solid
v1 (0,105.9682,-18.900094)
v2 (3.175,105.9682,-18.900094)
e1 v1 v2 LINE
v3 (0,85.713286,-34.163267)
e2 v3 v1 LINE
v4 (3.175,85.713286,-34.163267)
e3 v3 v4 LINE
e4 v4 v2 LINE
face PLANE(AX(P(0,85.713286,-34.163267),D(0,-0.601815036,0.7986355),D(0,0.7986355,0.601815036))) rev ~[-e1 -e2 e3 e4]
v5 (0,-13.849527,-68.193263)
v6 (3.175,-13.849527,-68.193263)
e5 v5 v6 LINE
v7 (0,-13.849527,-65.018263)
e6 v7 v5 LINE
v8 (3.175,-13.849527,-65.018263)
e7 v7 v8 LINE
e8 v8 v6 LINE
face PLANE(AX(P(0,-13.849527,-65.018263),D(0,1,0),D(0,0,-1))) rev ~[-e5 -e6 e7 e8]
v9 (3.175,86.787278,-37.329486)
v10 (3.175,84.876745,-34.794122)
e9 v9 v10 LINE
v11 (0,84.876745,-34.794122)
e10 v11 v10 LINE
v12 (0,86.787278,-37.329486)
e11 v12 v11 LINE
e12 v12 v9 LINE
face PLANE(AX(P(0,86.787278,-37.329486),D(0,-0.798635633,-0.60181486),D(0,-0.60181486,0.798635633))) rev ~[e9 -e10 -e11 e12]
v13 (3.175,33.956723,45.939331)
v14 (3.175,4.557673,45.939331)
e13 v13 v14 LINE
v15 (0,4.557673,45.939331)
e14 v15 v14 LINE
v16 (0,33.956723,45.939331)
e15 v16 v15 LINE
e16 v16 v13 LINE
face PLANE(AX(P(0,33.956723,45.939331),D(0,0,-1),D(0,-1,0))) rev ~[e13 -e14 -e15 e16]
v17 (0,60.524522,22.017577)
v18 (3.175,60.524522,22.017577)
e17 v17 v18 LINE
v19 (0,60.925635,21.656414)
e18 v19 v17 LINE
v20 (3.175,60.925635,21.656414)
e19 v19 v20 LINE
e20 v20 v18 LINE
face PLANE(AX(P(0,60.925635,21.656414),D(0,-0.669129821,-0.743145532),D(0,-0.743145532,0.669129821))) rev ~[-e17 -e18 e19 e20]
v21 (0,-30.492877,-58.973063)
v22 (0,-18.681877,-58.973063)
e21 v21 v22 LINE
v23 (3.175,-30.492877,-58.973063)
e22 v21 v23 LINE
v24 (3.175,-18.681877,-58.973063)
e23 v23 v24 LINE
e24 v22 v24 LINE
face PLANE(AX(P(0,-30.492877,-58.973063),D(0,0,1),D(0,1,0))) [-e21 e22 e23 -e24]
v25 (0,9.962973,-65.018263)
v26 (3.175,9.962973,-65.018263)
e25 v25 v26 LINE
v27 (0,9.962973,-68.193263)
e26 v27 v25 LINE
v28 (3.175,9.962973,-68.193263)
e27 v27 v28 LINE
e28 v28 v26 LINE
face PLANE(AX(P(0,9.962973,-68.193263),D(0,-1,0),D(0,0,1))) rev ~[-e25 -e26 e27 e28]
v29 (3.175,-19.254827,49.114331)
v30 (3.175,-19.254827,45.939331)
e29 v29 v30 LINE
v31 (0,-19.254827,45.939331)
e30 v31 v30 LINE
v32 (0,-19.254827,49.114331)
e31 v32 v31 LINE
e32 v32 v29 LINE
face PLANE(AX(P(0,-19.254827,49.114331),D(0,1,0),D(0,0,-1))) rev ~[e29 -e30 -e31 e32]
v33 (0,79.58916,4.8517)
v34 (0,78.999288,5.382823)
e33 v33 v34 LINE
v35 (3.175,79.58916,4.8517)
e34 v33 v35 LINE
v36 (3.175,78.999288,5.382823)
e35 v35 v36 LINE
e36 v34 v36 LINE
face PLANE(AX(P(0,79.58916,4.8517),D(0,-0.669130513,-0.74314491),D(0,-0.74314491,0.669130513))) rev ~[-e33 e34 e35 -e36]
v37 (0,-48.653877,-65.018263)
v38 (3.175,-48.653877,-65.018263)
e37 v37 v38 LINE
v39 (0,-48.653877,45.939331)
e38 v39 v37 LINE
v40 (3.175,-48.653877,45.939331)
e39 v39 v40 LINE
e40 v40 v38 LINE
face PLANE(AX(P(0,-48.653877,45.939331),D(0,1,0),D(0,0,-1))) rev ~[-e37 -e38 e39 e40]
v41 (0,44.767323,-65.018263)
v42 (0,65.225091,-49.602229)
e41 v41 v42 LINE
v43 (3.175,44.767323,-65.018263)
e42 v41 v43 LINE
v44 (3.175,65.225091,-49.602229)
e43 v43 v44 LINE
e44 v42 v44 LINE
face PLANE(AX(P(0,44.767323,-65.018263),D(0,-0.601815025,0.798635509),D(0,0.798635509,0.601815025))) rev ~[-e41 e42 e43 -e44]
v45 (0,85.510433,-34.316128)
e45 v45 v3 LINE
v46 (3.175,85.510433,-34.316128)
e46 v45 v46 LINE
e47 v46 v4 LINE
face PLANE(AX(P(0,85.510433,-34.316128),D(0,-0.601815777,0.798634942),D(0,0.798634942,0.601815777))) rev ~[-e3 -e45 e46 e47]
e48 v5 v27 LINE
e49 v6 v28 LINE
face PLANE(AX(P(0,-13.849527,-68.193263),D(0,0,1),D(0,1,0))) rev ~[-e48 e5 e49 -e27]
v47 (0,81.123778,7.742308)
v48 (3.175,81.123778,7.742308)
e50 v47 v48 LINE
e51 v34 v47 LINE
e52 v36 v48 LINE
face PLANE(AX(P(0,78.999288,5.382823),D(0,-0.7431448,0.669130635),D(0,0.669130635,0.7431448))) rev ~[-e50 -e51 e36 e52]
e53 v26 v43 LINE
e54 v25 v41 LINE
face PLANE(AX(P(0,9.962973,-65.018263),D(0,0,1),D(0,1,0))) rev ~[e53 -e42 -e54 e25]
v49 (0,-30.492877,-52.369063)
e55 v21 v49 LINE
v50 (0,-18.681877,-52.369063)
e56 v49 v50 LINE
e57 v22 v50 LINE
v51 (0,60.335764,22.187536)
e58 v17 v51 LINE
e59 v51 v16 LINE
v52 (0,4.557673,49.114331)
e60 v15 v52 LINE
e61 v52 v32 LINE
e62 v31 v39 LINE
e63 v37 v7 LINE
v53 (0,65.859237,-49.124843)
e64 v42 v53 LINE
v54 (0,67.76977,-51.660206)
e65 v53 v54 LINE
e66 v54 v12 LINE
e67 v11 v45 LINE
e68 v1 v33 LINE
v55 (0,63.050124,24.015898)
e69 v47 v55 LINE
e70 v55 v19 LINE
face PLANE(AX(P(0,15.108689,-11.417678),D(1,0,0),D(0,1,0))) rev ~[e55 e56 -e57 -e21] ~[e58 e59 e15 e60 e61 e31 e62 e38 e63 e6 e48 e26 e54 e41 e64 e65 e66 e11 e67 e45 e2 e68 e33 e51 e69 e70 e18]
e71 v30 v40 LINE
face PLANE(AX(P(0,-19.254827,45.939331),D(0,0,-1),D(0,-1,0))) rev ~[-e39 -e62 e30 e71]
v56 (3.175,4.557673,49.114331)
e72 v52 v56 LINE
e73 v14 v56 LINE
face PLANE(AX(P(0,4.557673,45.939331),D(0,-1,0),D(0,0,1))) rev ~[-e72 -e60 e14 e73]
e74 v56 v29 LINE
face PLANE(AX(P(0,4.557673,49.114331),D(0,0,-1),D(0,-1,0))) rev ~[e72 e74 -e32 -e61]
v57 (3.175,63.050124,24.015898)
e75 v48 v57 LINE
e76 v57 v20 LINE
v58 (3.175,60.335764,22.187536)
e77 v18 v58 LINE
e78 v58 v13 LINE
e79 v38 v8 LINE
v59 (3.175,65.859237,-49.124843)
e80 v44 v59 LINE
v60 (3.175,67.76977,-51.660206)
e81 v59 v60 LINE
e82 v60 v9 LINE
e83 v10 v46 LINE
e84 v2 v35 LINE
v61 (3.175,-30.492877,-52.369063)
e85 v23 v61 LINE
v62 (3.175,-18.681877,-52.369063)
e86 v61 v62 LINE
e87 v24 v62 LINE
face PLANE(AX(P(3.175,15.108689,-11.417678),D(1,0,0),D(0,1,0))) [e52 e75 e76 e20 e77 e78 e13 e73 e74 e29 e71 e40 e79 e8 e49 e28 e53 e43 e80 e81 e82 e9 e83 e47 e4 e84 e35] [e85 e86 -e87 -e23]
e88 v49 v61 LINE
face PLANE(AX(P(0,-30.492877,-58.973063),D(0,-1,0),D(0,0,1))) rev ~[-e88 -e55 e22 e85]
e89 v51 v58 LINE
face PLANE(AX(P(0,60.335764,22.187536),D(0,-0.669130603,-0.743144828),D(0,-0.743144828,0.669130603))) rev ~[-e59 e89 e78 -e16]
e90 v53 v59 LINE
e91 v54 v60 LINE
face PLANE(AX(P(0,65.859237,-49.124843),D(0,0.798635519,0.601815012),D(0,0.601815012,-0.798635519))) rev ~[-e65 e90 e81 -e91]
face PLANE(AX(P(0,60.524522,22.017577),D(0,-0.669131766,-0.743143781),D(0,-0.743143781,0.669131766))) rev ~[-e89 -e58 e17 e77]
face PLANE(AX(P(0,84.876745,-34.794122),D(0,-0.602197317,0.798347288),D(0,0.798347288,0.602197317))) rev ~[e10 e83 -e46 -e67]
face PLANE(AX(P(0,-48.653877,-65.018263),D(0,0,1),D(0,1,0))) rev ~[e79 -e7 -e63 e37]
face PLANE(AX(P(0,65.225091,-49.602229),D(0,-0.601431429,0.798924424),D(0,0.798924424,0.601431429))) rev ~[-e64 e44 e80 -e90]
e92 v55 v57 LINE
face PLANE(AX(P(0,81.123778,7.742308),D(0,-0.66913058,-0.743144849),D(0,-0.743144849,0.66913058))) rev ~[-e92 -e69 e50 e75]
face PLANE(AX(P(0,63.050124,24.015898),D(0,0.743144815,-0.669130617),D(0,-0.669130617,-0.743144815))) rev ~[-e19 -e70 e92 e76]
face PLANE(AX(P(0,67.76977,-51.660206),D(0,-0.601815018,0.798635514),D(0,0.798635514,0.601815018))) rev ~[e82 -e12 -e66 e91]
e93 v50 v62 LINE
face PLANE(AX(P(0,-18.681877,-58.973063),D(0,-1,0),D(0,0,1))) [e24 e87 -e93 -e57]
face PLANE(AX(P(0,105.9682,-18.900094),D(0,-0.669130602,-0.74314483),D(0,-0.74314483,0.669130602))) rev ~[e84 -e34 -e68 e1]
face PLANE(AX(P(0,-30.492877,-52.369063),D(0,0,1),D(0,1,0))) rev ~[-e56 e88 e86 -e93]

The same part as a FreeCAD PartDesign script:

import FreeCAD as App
import Part
import Sketcher

V = App.Vector
Q = App.Units.Quantity


def add_polygon(sketch, points):
    """Adds a closed chain of lines whose ends are joined by coincident constraints."""
    first, n = sketch.GeometryCount, len(points)
    for a, b in zip(points, points[1:] + points[:1]):
        sketch.addGeometry(Part.LineSegment(App.Vector(*a, 0), App.Vector(*b, 0)), False)
    for i in range(n):
        sketch.addConstraint(Sketcher.Constraint("Coincident", first + i, 2, first + (i + 1) % n, 1))

doc = App.newDocument("Part")
body = doc.addObject("PartDesign::Body", "Body")

# Sketch on YZ plane
sketch1 = body.newObject("Sketcher::SketchObject", "Sketch")
sketch1.AttachmentSupport = (doc.getObject("YZ_Plane"), [""])
sketch1.MapMode = "FlatFace"
add_polygon(sketch1, [(60.34, 22.19), (33.96, 45.94), (4.56, 45.94), (4.56, 49.11), (-19.25, 49.11), (-19.25, 45.94), (-48.65, 45.94), (-48.65, -65.02), (-13.85, -65.02), (-13.85, -68.19), (9.96, -68.19), (9.96, -65.02), (44.77, -65.02), (65.23, -49.6), (65.86, -49.12), (67.77, -51.66), (86.79, -37.33), (84.88, -34.79), (85.51, -34.32), (85.71, -34.16), (105.97, -18.9), (79.59, 4.85), (79, 5.38), (81.12, 7.74), (63.05, 24.02), (60.93, 21.66), (60.52, 22.02)])  # lines 0-26
add_polygon(sketch1, [(-18.68, -58.97), (-30.49, -58.97), (-30.49, -52.37), (-18.68, -52.37)])  # lines 27-30
sketch1.addConstraint([
    Sketcher.Constraint("Horizontal", 1),
    Sketcher.Constraint("Vertical", 2),
    Sketcher.Constraint("Horizontal", 3),
    Sketcher.Constraint("Vertical", 4),
    Sketcher.Constraint("Horizontal", 5),
    Sketcher.Constraint("Vertical", 6),
    Sketcher.Constraint("Horizontal", 7),
    Sketcher.Constraint("Vertical", 8),
    Sketcher.Constraint("Horizontal", 9),
    Sketcher.Constraint("Vertical", 10),
    Sketcher.Constraint("Horizontal", 11),
    Sketcher.Constraint("Horizontal", 27),
    Sketcher.Constraint("Vertical", 28),
    Sketcher.Constraint("Horizontal", 29),
    Sketcher.Constraint("Vertical", 30),
    Sketcher.Constraint("Perpendicular", 12, 14),
    Sketcher.Constraint("Perpendicular", 14, 15),
    Sketcher.Constraint("Perpendicular", 15, 16),
    Sketcher.Constraint("Perpendicular", 16, 18),
    Sketcher.Constraint("Parallel", 18, 19),
    Sketcher.Constraint("Parallel", 0, 20),
    Sketcher.Constraint("Parallel", 20, 21),
    Sketcher.Constraint("Perpendicular", 21, 22),
    Sketcher.Constraint("Perpendicular", 22, 23),
    Sketcher.Constraint("Perpendicular", 23, 24),
    Sketcher.Constraint("Perpendicular", 24, 25),
    Sketcher.Constraint("Perpendicular", 24, 26),
    Sketcher.Constraint("Horizontal", 1, 2, 4, 2),
    Sketcher.Constraint("Horizontal", 7, 2, 10, 2),
    Sketcher.Constraint("Equal", 1, 5),
    Sketcher.Constraint("Equal", 3, 9),
    Sketcher.Constraint("Equal", 7, 11),
    Sketcher.Constraint("Equal", 4, 8),
    Sketcher.Constraint("Equal", 14, 16),
    Sketcher.Constraint("Equal", 13, 17),
    Sketcher.Constraint("Equal", 0, 20),
    Sketcher.Constraint("Equal", 17, 21),
    Sketcher.Constraint("Equal", 22, 24),
    Sketcher.Constraint("Equal", 18, 26),
    Sketcher.Constraint("Angle", 0, Q("138 deg")),
    Sketcher.Constraint("Angle", 12, Q("37 deg")),
    Sketcher.Constraint("DistanceY", 28, 1, 28, 2, Q("0.26 in")),
    Sketcher.Constraint("Distance", 18, Q("0.01 in")),
    Sketcher.Constraint("DistanceX", 3, 2, 3, 1, Q("0.9375 in")),
    Sketcher.Constraint("DistanceX", 27, 2, 27, 1, Q("0.465 in")),
    Sketcher.Constraint("DistanceY", 2, 1, 2, 2, Q("0.125 in")),
    Sketcher.Constraint("Distance", 13, Q("0.03125 in")),
    Sketcher.Constraint("Distance", 15, Q("0.9375 in")),
    Sketcher.Constraint("Distance", 22, Q("0.125 in")),
    Sketcher.Constraint("DistanceX", 6, 2, 11, 2, Q("3.678 in")),
    Sketcher.Constraint("DistanceY", 7, 2, 27, 2, Q("0.238 in")),
    Sketcher.Constraint("DistanceX", 6, 2, 27, 2, Q("0.715 in")),
    Sketcher.Constraint("Distance", 0, Q("1.3975 in")),
    Sketcher.Constraint("Distance", 12, Q("1.0085 in")),
    Sketcher.Constraint("Distance", 19, Q("0.9985 in")),
    Sketcher.Constraint("Distance", 23, Q("0.9575 in")),
    Sketcher.Constraint("DistanceX", 1, 2, 1, 1, 29.39905),
    Sketcher.Constraint("DistanceX", -1, 1, 19, 2, 105.9682),
    Sketcher.Constraint("DistanceY", -1, 1, 20, 2, 4.8517),
    Sketcher.Constraint("DistanceY", 12, 2, 17, 2, 15.286101),
    Sketcher.Constraint("Distance", 14, 3.174618),
    Sketcher.Constraint("DistanceX", -1, 1, 14, 2, 67.76977),
])
pad1 = body.newObject("PartDesign::Pad", "Pad")
pad1.Profile = sketch1
pad1.Length = Q("0.125 in")

doc.recompute()
